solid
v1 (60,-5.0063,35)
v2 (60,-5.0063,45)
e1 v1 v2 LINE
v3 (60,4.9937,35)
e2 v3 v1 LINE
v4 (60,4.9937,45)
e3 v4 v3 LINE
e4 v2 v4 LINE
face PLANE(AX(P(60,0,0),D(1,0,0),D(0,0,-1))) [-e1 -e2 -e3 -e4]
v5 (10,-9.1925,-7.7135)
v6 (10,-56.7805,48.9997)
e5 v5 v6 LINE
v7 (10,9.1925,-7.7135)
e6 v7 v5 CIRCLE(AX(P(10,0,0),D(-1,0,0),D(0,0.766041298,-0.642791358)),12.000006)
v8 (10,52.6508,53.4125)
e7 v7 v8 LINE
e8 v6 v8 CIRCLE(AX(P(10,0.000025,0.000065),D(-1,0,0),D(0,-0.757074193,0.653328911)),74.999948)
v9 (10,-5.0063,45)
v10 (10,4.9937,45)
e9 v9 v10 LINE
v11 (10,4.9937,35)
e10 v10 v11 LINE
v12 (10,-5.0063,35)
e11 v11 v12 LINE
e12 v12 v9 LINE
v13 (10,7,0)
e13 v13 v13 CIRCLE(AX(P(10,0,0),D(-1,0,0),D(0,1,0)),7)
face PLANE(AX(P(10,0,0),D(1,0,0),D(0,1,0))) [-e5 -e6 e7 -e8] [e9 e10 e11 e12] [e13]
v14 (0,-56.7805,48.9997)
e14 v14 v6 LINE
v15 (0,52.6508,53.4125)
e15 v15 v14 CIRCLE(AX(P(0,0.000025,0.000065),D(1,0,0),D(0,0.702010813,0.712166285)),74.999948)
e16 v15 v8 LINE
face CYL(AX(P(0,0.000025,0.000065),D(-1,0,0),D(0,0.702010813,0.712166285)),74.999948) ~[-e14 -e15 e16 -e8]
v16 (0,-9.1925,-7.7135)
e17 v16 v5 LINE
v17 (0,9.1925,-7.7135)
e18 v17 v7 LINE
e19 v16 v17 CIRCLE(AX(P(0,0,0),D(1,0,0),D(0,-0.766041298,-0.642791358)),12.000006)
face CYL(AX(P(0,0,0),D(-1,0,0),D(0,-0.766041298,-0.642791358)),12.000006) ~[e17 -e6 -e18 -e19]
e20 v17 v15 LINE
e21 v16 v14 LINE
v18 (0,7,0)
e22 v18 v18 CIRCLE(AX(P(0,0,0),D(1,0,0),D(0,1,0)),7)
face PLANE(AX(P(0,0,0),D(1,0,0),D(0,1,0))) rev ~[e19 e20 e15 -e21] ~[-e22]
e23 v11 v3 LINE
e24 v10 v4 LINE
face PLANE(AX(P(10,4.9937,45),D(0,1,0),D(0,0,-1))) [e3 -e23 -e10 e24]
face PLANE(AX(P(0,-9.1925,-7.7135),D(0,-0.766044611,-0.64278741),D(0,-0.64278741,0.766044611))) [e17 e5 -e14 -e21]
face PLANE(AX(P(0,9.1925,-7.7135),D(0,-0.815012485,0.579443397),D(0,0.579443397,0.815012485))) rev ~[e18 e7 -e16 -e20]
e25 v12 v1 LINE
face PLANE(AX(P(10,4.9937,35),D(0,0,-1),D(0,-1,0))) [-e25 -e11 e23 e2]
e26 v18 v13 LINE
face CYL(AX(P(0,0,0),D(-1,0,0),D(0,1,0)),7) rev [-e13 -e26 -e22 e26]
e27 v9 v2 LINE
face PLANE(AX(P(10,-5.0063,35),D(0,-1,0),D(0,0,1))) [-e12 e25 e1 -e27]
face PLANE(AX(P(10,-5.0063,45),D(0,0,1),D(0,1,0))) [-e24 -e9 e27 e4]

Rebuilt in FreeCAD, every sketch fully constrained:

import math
import FreeCAD as App
import Part
import Sketcher
Q = App.Units.Quantity


def add_polygon(sketch, points):
    """Adds a closed chain of lines whose ends are joined by coincident constraints."""
    first, n = sketch.GeometryCount, len(points)
    for a, b in zip(points, points[1:] + points[:1]):
        sketch.addGeometry(Part.LineSegment(App.Vector(*a, 0), App.Vector(*b, 0)), False)
    for i in range(n):
        sketch.addConstraint(Sketcher.Constraint("Coincident", first + i, 2, first + (i + 1) % n, 1))

doc = App.newDocument("Part")
params = doc.addObject("Spreadsheet::Sheet", "Params")
for row, (alias, value) in enumerate([
    ("sketch1_diameter", "14 mm"),
    ("sketch1_radius", "75 mm"),
    ("sketch1_radius2", "12 mm"),
    ("sketch1_length", "75 mm"),
    ("pad1_length", "10 mm"),
    ("sketch2_width", "10 mm"),
    ("pad2_length", "50 mm"),
], start=1):
    params.set(f"A{row}", alias)
    params.set(f"B{row}", "=" + value)
    params.setAlias(f"B{row}", alias)

body = doc.addObject("PartDesign::Body", "Body")

sketch1 = body.newObject("Sketcher::SketchObject", "Sketch")
sketch1.AttachmentSupport = (doc.getObject("YZ_Plane"), [""])
sketch1.MapMode = "FlatFace"
sketch1.addGeometry(Part.LineSegment(App.Vector(9, -8, 0), App.Vector(53, 53, 0)), False)
sketch1.addGeometry(Part.ArcOfCircle(Part.Circle(App.Vector(0, 0, 0), App.Vector(0, 0, 1), 75), math.radians(45), math.radians(139)), False)
sketch1.addGeometry(Part.LineSegment(App.Vector(-57, 49, 0), App.Vector(-9, -8, 0)), False)
sketch1.addGeometry(Part.ArcOfCircle(Part.Circle(App.Vector(0, 0, 0), App.Vector(0, 0, 1), 12), math.radians(-140), math.radians(-40)), False)
sketch1.addGeometry(Part.Circle(App.Vector(0, 0, 0), App.Vector(0, 0, 1), 7), False)
sketch1.addConstraint(Sketcher.Constraint("Coincident", 0, 2, 1, 1))
sketch1.addConstraint(Sketcher.Constraint("Coincident", 1, 2, 2, 1))
sketch1.addConstraint(Sketcher.Constraint("Tangent", 2, 2, 3, 1))
sketch1.addConstraint(Sketcher.Constraint("Coincident", 3, 2, 0, 1))
sketch1.addConstraint(Sketcher.Constraint("Coincident", 1, 3, -1, 1))
sketch1.addConstraint(Sketcher.Constraint("Coincident", 3, 3, -1, 1))
sketch1.addConstraint(Sketcher.Constraint("Coincident", 4, 3, -1, 1))
sketch1.addConstraint(Sketcher.Constraint("Horizontal", 2, 2, 3, 2))
sketch1.addConstraint(Sketcher.Constraint("Diameter", 4, Q("14 mm")))
sketch1.addConstraint(Sketcher.Constraint("Radius", 1, Q("75 mm")))
sketch1.addConstraint(Sketcher.Constraint("Radius", 3, Q("12 mm")))
sketch1.addConstraint(Sketcher.Constraint("Angle", 2, Q("-50 deg")))
sketch1.addConstraint(Sketcher.Constraint("Distance", 0, Q("75 mm")))
sketch1.setExpression("Constraints[8]", "Params.sketch1_diameter")
sketch1.setExpression("Constraints[9]", "Params.sketch1_radius")
sketch1.setExpression("Constraints[10]", "Params.sketch1_radius2")
sketch1.setExpression("Constraints[12]", "Params.sketch1_length")
pad1 = body.newObject("PartDesign::Pad", "Pad")
pad1.Profile = sketch1
pad1.setExpression("Length", "Params.pad1_length")

sketch2 = body.newObject("Sketcher::SketchObject", "Sketch001")
sketch2.AttachmentSupport = (doc.getObject("YZ_Plane"), [""])
sketch2.MapMode = "FlatFace"
sketch2.AttachmentOffset = App.Placement(App.Vector(0, 0, 10), App.Rotation())
add_polygon(sketch2, [(-5, 45), (-5, 35), (5, 35), (5, 45)])
sketch2.addConstraint(Sketcher.Constraint("Vertical", 0))
sketch2.addConstraint(Sketcher.Constraint("Horizontal", 1))
sketch2.addConstraint(Sketcher.Constraint("Vertical", 2))
sketch2.addConstraint(Sketcher.Constraint("Horizontal", 3))
sketch2.addConstraint(Sketcher.Constraint("Equal", 3, 0))
sketch2.addConstraint(Sketcher.Constraint("DistanceX", 1, 1, 1, 2, Q("10 mm")))
sketch2.addConstraint(Sketcher.Constraint("DistanceY", -1, 1, 0, 2, Q("35 mm")))
sketch2.addConstraint(Sketcher.Constraint("DistanceX", 0, 2, -1, 1, Q("5.0063 mm")))
sketch2.setExpression("Constraints[9]", "Params.sketch2_width")
pad2 = body.newObject("PartDesign::Pad", "Pad001")
pad2.Profile = sketch2
pad2.setExpression("Length", "Params.pad2_length")

doc.recompute()
